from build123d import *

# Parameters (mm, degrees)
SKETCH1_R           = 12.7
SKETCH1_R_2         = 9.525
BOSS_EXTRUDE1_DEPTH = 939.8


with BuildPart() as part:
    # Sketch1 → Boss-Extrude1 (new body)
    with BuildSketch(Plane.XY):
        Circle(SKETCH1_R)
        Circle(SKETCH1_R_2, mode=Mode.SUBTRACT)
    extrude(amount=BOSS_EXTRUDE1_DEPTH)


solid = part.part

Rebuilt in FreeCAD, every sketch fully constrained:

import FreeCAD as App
import Part
import Sketcher

V = App.Vector
Q = App.Units.Quantity

doc = App.newDocument("Part")
body = doc.addObject("PartDesign::Body", "Body")

# Sketch on XY plane
sketch1 = doc.addObject("Sketcher::SketchObject", "Sketch")
body.addObject(sketch1)
sketch1.AttachmentSupport = (doc.XY_Plane, [""])
sketch1.MapMode = "FlatFace"
sketch1.addGeometry([
    Part.Circle(V(0, 0, 0), V(0, 0, 1), 13),
    Part.Circle(V(0, 0, 0), V(0, 0, 1), 10),
], False)
sketch1.addConstraint([
    Sketcher.Constraint("Coincident", 0, 3, -1, 1),
    Sketcher.Constraint("Coincident", 1, 3, -1, 1),
    Sketcher.Constraint("Diameter", 0, Q("1 in")),
    Sketcher.Constraint("Diameter", 1, Q("0.75 in")),
])
pad1 = doc.addObject("PartDesign::Pad", "Pad")
body.addObject(pad1)
pad1.Profile = sketch1
pad1.Length = Q("37 in")

doc.recompute()
